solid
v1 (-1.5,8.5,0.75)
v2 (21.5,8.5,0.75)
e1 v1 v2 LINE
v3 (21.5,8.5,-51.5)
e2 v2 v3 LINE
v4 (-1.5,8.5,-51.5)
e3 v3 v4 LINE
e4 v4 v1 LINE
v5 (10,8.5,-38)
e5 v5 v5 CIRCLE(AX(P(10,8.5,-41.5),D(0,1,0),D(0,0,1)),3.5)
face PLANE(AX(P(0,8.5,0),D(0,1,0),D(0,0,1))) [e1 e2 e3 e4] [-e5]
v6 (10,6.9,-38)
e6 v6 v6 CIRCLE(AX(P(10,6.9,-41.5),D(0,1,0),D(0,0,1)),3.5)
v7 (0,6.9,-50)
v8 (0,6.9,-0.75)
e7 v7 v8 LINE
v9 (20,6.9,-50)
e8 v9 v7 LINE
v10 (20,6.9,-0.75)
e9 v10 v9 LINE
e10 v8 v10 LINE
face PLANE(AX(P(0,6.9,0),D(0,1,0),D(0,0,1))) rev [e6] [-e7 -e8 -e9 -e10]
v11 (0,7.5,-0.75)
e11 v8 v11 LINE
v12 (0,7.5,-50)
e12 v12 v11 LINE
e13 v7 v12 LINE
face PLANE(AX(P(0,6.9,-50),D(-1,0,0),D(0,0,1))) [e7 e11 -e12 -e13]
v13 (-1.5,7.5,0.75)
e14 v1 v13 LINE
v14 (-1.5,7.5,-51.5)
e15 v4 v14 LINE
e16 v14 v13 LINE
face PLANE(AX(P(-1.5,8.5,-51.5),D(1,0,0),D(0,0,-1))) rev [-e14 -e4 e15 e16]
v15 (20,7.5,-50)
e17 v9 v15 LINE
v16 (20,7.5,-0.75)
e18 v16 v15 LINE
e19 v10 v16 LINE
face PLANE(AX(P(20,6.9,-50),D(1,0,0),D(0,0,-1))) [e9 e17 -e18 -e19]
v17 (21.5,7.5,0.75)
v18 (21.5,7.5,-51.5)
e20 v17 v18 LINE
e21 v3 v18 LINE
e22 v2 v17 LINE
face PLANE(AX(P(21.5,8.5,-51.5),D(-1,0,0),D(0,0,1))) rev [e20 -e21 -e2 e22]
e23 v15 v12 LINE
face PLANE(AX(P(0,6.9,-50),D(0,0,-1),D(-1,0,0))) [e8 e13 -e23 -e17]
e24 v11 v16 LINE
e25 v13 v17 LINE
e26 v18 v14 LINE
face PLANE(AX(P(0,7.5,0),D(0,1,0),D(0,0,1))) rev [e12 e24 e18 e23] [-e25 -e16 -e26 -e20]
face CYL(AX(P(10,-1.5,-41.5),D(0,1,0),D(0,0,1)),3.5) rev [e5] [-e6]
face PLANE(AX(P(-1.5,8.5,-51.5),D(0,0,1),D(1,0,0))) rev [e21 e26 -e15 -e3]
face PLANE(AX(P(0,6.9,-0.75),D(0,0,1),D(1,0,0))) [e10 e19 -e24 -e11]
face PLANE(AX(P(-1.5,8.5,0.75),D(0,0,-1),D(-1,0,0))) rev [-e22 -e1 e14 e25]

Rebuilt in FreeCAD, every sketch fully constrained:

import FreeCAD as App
import Part
import Sketcher

doc = App.newDocument("Part")
body = doc.addObject("PartDesign::Body", "Body")

# Sketch on XZ plane
sketch1 = body.newObject("Sketcher::SketchObject", "Sketch")
sketch1.AttachmentSupport = (doc.getObject("XZ_Plane"), [""])
sketch1.MapMode = "FlatFace"
sketch1.AttachmentOffset = App.Placement(App.Vector(0, 0, -7.5), App.Rotation())
sketch1.addGeometry(Part.LineSegment(App.Vector(0, -50, 0), App.Vector(0, -1, 0)), False)
sketch1.addGeometry(Part.LineSegment(App.Vector(0, -1, 0), App.Vector(20, -1, 0)), False)
sketch1.addGeometry(Part.LineSegment(App.Vector(20, -1, 0), App.Vector(20, -50, 0)), False)
sketch1.addGeometry(Part.LineSegment(App.Vector(20, -50, 0), App.Vector(0, -50, 0)), False)
sketch1.addConstraint(Sketcher.Constraint("Coincident", 0, 2, 1, 1))
sketch1.addConstraint(Sketcher.Constraint("Coincident", 1, 2, 2, 1))
sketch1.addConstraint(Sketcher.Constraint("Coincident", 2, 2, 3, 1))
sketch1.addConstraint(Sketcher.Constraint("Coincident", 3, 2, 0, 1))
sketch1.addConstraint(Sketcher.Constraint("Vertical", 0))
sketch1.addConstraint(Sketcher.Constraint("Horizontal", 1))
sketch1.addConstraint(Sketcher.Constraint("Vertical", 2))
sketch1.addConstraint(Sketcher.Constraint("Horizontal", 3))
sketch1.addConstraint(Sketcher.Constraint("PointOnObject", 0, 2, -2))
sketch1.addConstraint(Sketcher.Constraint("DistanceX", 1, 1, 1, 2, 20.0))
sketch1.addConstraint(Sketcher.Constraint("DistanceY", 2, 2, -1, 1, 50.0))
sketch1.addConstraint(Sketcher.Constraint("DistanceY", 0, 1, 0, 2, 49.25))
pad1 = body.newObject("PartDesign::Pad", "Pad")
pad1.Profile = sketch1
pad1.Length = 0.6

# Sketch on XZ plane
sketch2 = body.newObject("Sketcher::SketchObject", "Sketch001")
sketch2.AttachmentSupport = (doc.getObject("XZ_Plane"), [""])
sketch2.MapMode = "FlatFace"
sketch2.AttachmentOffset = App.Placement(App.Vector(0, 0, -7.5), App.Rotation())
sketch2.addGeometry(Part.LineSegment(App.Vector(-2, -52, 0), App.Vector(-2, 1, 0)), False)
sketch2.addGeometry(Part.LineSegment(App.Vector(-2, 1, 0), App.Vector(22, 1, 0)), False)
sketch2.addGeometry(Part.LineSegment(App.Vector(22, 1, 0), App.Vector(22, -52, 0)), False)
sketch2.addGeometry(Part.LineSegment(App.Vector(22, -52, 0), App.Vector(-2, -52, 0)), False)
sketch2.addConstraint(Sketcher.Constraint("Coincident", 0, 2, 1, 1))
sketch2.addConstraint(Sketcher.Constraint("Coincident", 1, 2, 2, 1))
sketch2.addConstraint(Sketcher.Constraint("Coincident", 2, 2, 3, 1))
sketch2.addConstraint(Sketcher.Constraint("Coincident", 3, 2, 0, 1))
sketch2.addConstraint(Sketcher.Constraint("Vertical", 0))
sketch2.addConstraint(Sketcher.Constraint("Horizontal", 1))
sketch2.addConstraint(Sketcher.Constraint("Vertical", 2))
sketch2.addConstraint(Sketcher.Constraint("Horizontal", 3))
sketch2.addConstraint(Sketcher.Constraint("DistanceX", 1, 1, 1, 2, 23.0))
sketch2.addConstraint(Sketcher.Constraint("DistanceY", 0, 1, 0, 2, 52.25))
sketch2.addConstraint(Sketcher.Constraint("DistanceX", 0, 2, -1, 1, 1.5))
sketch2.addConstraint(Sketcher.Constraint("DistanceY", 2, 2, -1, 1, 51.5))
pad2 = body.newObject("PartDesign::Pad", "Pad001")
pad2.Profile = sketch2
pad2.Length = 1
pad2.Reversed = True

# Sketch on XZ plane
sketch3 = body.newObject("Sketcher::SketchObject", "Sketch002")
sketch3.AttachmentSupport = (doc.getObject("XZ_Plane"), [""])
sketch3.MapMode = "FlatFace"
sketch3.AttachmentOffset = App.Placement(App.Vector(0, 0, -8.5), App.Rotation())
sketch3.addGeometry(Part.Circle(App.Vector(10, -41.5, 0), App.Vector(0, 0, 1), 3.5), False)
sketch3.addConstraint(Sketcher.Constraint("Diameter", 0, 7.0))
sketch3.addConstraint(Sketcher.Constraint("DistanceX", -1, 1, 0, 3, 10.0))
sketch3.addConstraint(Sketcher.Constraint("DistanceY", 0, 3, -1, 1, 41.5))
pocket1 = body.newObject("PartDesign::Pocket", "Pocket")
pocket1.Profile = sketch3
pocket1.Length = 10
pocket1.Reversed = True

doc.recompute()
